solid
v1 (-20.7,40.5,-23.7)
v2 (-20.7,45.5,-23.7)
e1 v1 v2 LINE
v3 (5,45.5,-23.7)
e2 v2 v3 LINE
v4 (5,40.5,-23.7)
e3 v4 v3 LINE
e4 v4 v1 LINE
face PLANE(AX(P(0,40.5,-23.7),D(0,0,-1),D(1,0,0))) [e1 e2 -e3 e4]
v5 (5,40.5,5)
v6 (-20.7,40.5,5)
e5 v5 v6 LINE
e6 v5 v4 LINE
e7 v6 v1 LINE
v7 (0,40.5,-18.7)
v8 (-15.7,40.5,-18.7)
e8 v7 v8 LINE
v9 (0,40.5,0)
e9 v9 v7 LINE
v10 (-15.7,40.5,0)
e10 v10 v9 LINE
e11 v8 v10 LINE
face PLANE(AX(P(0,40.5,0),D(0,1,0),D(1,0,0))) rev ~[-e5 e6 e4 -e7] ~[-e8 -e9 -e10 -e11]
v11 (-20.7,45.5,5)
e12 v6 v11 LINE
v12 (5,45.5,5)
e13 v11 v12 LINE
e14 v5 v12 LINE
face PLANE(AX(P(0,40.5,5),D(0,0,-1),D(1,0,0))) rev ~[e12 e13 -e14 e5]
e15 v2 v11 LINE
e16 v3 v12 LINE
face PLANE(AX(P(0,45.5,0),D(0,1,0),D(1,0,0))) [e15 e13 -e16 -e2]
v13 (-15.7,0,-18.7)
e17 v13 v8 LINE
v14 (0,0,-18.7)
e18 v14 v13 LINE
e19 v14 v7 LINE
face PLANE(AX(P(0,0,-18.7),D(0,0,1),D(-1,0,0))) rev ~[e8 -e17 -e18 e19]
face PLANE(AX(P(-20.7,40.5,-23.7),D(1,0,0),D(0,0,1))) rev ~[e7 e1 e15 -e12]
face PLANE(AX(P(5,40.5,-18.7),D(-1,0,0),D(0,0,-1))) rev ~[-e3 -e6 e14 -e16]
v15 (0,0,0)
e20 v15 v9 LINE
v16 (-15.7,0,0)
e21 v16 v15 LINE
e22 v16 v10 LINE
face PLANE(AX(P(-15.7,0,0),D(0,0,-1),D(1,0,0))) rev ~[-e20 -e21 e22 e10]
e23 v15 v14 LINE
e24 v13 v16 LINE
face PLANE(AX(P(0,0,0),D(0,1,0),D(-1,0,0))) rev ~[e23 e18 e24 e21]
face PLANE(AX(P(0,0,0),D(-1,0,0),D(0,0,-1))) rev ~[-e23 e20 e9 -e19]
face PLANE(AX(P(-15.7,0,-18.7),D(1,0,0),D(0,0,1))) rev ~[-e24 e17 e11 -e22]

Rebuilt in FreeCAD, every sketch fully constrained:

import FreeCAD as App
import Part
import Sketcher
from FreeCAD import Vector
Q = App.Units.Quantity

doc = App.newDocument("Part")
body = doc.addObject("PartDesign::Body", "Body")

# Sketch on XZ plane
sketch1 = body.newObject("Sketcher::SketchObject", "Sketch")
sketch1.AttachmentSupport = (doc.getObject("XZ_Plane"), [""])
sketch1.MapMode = "FlatFace"
sketch1.addGeometry([
    Part.LineSegment(Vector(-15.7, 0, 0), Vector(0, 0, 0)),
    Part.LineSegment(Vector(0, 0, 0), Vector(0, -18.7, 0)),
    Part.LineSegment(Vector(0, -18.7, 0), Vector(-15.7, -18.7, 0)),
    Part.LineSegment(Vector(-15.7, -18.7, 0), Vector(-15.7, 0, 0)),
], False)
sketch1.addConstraint([
    Sketcher.Constraint("Coincident", 0, 2, 1, 1),
    Sketcher.Constraint("Coincident", 1, 2, 2, 1),
    Sketcher.Constraint("Coincident", 2, 2, 3, 1),
    Sketcher.Constraint("Coincident", 3, 2, 0, 1),
    Sketcher.Constraint("Horizontal", 0),
    Sketcher.Constraint("Vertical", 1),
    Sketcher.Constraint("Horizontal", 2),
    Sketcher.Constraint("Vertical", 3),
    Sketcher.Constraint("Coincident", 0, 2, -1, 1),
    Sketcher.Constraint("DistanceX", 0, 1, 0, 2, Q("15.7 mm")),
    Sketcher.Constraint("DistanceY", 1, 2, 1, 1, Q("18.7 mm")),
])
pad1 = body.newObject("PartDesign::Pad", "Pad")
pad1.Profile = sketch1
pad1.Length = 40.5
pad1.Reversed = True

# Sketch on XZ plane
sketch2 = body.newObject("Sketcher::SketchObject", "Sketch001")
sketch2.AttachmentSupport = (doc.getObject("XZ_Plane"), [""])
sketch2.MapMode = "FlatFace"
sketch2.AttachmentOffset = App.Placement(Vector(0, 0, -40.5), App.Rotation())
sketch2.addGeometry([
    Part.LineSegment(Vector(5, -23.7, 0), Vector(-20.7, -23.7, 0)),
    Part.LineSegment(Vector(-20.7, -23.7, 0), Vector(-20.7, 5, 0)),
    Part.LineSegment(Vector(-20.7, 5, 0), Vector(5, 5, 0)),
    Part.LineSegment(Vector(5, 5, 0), Vector(5, -23.7, 0)),
], False)
sketch2.addConstraint([
    Sketcher.Constraint("Coincident", 0, 2, 1, 1),
    Sketcher.Constraint("Coincident", 1, 2, 2, 1),
    Sketcher.Constraint("Coincident", 2, 2, 3, 1),
    Sketcher.Constraint("Coincident", 3, 2, 0, 1),
    Sketcher.Constraint("Horizontal", 0),
    Sketcher.Constraint("Vertical", 1),
    Sketcher.Constraint("Horizontal", 2),
    Sketcher.Constraint("Vertical", 3),
    Sketcher.Constraint("DistanceY", -1, 1, 1, 2, Q("5 mm")),
    Sketcher.Constraint("DistanceX", -1, 1, 2, 2, Q("5 mm")),
    Sketcher.Constraint("DistanceX", 0, 2, 0, 1, Q("25.7 mm")),
    Sketcher.Constraint("DistanceY", 1, 1, 1, 2, Q("28.7 mm")),
])
pad2 = body.newObject("PartDesign::Pad", "Pad001")
pad2.Profile = sketch2
pad2.Length = 5
pad2.Reversed = True

doc.recompute()
